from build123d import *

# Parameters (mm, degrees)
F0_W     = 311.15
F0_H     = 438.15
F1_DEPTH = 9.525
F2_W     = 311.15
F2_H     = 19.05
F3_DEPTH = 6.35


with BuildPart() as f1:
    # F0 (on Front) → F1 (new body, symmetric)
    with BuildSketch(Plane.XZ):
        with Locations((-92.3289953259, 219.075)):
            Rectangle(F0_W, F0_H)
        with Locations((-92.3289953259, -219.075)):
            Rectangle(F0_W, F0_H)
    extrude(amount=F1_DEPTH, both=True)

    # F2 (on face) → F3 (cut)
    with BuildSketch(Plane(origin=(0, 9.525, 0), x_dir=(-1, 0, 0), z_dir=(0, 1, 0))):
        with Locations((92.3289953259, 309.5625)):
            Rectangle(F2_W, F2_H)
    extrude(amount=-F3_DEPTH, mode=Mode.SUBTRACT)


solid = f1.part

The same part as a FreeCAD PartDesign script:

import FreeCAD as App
import Part
import Sketcher
Q = App.Units.Quantity

doc = App.newDocument("Part")
body = doc.addObject("PartDesign::Body", "Body")

# Sketch on XZ plane
sketch1 = doc.addObject("Sketcher::SketchObject", "Sketch")
body.addObject(sketch1)
sketch1.AttachmentSupport = (doc.XZ_Plane, [""])
sketch1.MapMode = "FlatFace"
sketch1.addGeometry([
    Part.LineSegment(App.Vector(-248, 438, 0), App.Vector(-248, -438, 0)),
    Part.LineSegment(App.Vector(-248, -438, 0), App.Vector(63, -438, 0)),
    Part.LineSegment(App.Vector(63, -438, 0), App.Vector(63, 438, 0)),
    Part.LineSegment(App.Vector(63, 438, 0), App.Vector(-248, 438, 0)),
], False)
sketch1.addConstraint([
    Sketcher.Constraint("Coincident", 0, 2, 1, 1),
    Sketcher.Constraint("Coincident", 1, 2, 2, 1),
    Sketcher.Constraint("Coincident", 2, 2, 3, 1),
    Sketcher.Constraint("Coincident", 3, 2, 0, 1),
    Sketcher.Constraint("Vertical", 0),
    Sketcher.Constraint("Horizontal", 1),
    Sketcher.Constraint("Vertical", 2),
    Sketcher.Constraint("Horizontal", 3),
    Sketcher.Constraint("DistanceY", 0, 2, 0, 1, Q("34.5 in")),
    Sketcher.Constraint("DistanceX", 1, 1, 1, 2, Q("12.25 in")),
    Sketcher.Constraint("DistanceX", 0, 2, -1, 1, Q("9.7599998 in")),
    Sketcher.Constraint("DistanceY", 0, 2, -1, 1, Q("17.25 in")),
])
pad1 = doc.addObject("PartDesign::Pad", "Pad")
body.addObject(pad1)
pad1.Profile = sketch1
pad1.Length = Q("0.75 in")
pad1.Midplane = True

# Sketch on XZ plane
sketch2 = doc.addObject("Sketcher::SketchObject", "Sketch001")
body.addObject(sketch2)
sketch2.AttachmentSupport = (doc.XZ_Plane, [""])
sketch2.MapMode = "FlatFace"
sketch2.AttachmentOffset = App.Placement(App.Vector(0, 0, -0.375 * 25.4), App.Rotation())
sketch2.addGeometry([
    Part.LineSegment(App.Vector(63, 319, 0), App.Vector(63, 300, 0)),
    Part.LineSegment(App.Vector(63, 300, 0), App.Vector(-248, 300, 0)),
    Part.LineSegment(App.Vector(-248, 300, 0), App.Vector(-248, 319, 0)),
    Part.LineSegment(App.Vector(-248, 319, 0), App.Vector(63, 319, 0)),
], False)
sketch2.addConstraint([
    Sketcher.Constraint("Coincident", 0, 2, 1, 1),
    Sketcher.Constraint("Coincident", 1, 2, 2, 1),
    Sketcher.Constraint("Coincident", 2, 2, 3, 1),
    Sketcher.Constraint("Coincident", 3, 2, 0, 1),
    Sketcher.Constraint("Vertical", 0),
    Sketcher.Constraint("Horizontal", 1),
    Sketcher.Constraint("Vertical", 2),
    Sketcher.Constraint("Horizontal", 3),
    Sketcher.Constraint("DistanceX", 1, 2, 1, 1, Q("12.25 in")),
    Sketcher.Constraint("DistanceY", 0, 2, 0, 1, Q("0.75 in")),
    Sketcher.Constraint("DistanceX", -1, 1, 0, 2, Q("2.4900002 in")),
    Sketcher.Constraint("DistanceY", -1, 1, 0, 2, Q("11.8125 in")),
])
pocket1 = doc.addObject("PartDesign::Pocket", "Pocket")
body.addObject(pocket1)
pocket1.Profile = sketch2
pocket1.Length = Q("0.25 in")
pocket1.Reversed = True

doc.recompute()
